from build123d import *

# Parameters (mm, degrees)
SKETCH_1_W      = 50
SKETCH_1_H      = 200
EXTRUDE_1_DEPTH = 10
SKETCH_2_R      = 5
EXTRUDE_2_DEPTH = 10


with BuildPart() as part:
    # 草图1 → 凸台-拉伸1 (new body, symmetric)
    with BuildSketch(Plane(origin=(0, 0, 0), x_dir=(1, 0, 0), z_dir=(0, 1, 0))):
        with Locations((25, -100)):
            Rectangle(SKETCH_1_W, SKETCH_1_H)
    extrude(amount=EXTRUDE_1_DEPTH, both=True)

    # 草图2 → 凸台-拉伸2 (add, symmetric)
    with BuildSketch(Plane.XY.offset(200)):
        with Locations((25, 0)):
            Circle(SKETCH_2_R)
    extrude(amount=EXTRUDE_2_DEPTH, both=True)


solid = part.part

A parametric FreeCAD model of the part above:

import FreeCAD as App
import Part
import Sketcher

V = App.Vector

doc = App.newDocument("Part")
body = doc.addObject("PartDesign::Body", "Body")

# Sketch on XZ plane
sketch1 = body.newObject("Sketcher::SketchObject", "Sketch")
sketch1.AttachmentSupport = (doc.getObject("XZ_Plane"), [""])
sketch1.MapMode = "FlatFace"
sketch1.addGeometry(Part.LineSegment(V(0, 0, 0), V(0, 200, 0)), False)
sketch1.addGeometry(Part.LineSegment(V(0, 200, 0), V(50, 200, 0)), False)
sketch1.addGeometry(Part.LineSegment(V(50, 200, 0), V(50, 0, 0)), False)
sketch1.addGeometry(Part.LineSegment(V(50, 0, 0), V(0, 0, 0)), False)
sketch1.addConstraint(Sketcher.Constraint("Coincident", 0, 2, 1, 1))
sketch1.addConstraint(Sketcher.Constraint("Coincident", 1, 2, 2, 1))
sketch1.addConstraint(Sketcher.Constraint("Coincident", 2, 2, 3, 1))
sketch1.addConstraint(Sketcher.Constraint("Coincident", 3, 2, 0, 1))
sketch1.addConstraint(Sketcher.Constraint("Vertical", 0))
sketch1.addConstraint(Sketcher.Constraint("Horizontal", 1))
sketch1.addConstraint(Sketcher.Constraint("Vertical", 2))
sketch1.addConstraint(Sketcher.Constraint("Horizontal", 3))
sketch1.addConstraint(Sketcher.Constraint("Coincident", 3, 2, -1, 1))
sketch1.addConstraint(Sketcher.Constraint("DistanceX", 1, 1, 1, 2, 50.0))
sketch1.addConstraint(Sketcher.Constraint("DistanceY", 0, 1, 0, 2, 200.0))
pad1 = body.newObject("PartDesign::Pad", "Pad")
pad1.Profile = sketch1
pad1.Length = 20
pad1.Midplane = True

# Sketch on XY plane
sketch2 = body.newObject("Sketcher::SketchObject", "Sketch001")
sketch2.AttachmentSupport = (doc.getObject("XY_Plane"), [""])
sketch2.MapMode = "FlatFace"
sketch2.AttachmentOffset = App.Placement(V(0, 0, 200), App.Rotation())
sketch2.addGeometry(Part.Circle(V(25, 0, 0), V(0, 0, 1), 5), False)
sketch2.addConstraint(Sketcher.Constraint("PointOnObject", 0, 3, -1))
sketch2.addConstraint(Sketcher.Constraint("Diameter", 0, 10.0))
sketch2.addConstraint(Sketcher.Constraint("DistanceX", -1, 1, 0, 3, 25.0))
pad2 = body.newObject("PartDesign::Pad", "Pad001")
pad2.Profile = sketch2
pad2.Length = 20
pad2.Midplane = True

doc.recompute()
